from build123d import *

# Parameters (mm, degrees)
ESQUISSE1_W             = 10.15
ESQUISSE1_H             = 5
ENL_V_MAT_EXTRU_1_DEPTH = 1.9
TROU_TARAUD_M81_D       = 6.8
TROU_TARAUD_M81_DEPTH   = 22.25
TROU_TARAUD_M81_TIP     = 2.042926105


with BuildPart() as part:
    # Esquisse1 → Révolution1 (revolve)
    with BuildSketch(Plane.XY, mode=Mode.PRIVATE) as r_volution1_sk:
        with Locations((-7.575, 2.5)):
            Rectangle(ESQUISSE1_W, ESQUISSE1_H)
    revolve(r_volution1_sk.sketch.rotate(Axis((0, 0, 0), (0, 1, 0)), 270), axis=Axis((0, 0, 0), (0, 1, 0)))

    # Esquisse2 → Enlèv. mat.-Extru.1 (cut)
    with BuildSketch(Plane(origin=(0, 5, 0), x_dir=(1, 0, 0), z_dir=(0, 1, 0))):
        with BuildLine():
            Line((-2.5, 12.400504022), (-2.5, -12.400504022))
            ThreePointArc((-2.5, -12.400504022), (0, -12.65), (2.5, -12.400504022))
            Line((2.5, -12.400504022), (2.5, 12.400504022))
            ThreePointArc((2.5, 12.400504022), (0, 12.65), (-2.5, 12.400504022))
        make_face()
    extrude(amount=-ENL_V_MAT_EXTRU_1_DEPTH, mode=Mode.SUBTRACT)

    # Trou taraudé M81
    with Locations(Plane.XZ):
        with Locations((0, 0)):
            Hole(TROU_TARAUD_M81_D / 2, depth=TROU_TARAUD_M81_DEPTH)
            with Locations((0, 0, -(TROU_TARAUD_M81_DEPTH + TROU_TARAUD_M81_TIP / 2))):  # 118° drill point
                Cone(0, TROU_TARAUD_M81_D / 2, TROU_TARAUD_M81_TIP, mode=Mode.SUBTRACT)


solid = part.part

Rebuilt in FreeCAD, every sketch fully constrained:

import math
import FreeCAD as App
import Part
import Sketcher

V = App.Vector
Q = App.Units.Quantity

doc = App.newDocument("Part")
params = doc.addObject("Spreadsheet::Sheet", "Params")
for row, (alias, value) in enumerate([
    ("sketch1_height", "5 mm"),
    ("sketch1_width", "10.15 mm"),
    ("revolution_angle", "360 deg"),
    ("sketch2_radius", "12.65 mm"),
    ("pocket1_length", "1.9 mm"),
    ("sketch3_diameter", "6.8 mm"),
    ("hole_diameter", "6.8 mm"),
    ("hole_depth", "22.25 mm"),
], start=1):
    params.set(f"A{row}", alias)
    params.set(f"B{row}", "=" + value)
    params.setAlias(f"B{row}", alias)

body = doc.addObject("PartDesign::Body", "Body")

# Sketch on XY plane
sketch1 = body.newObject("Sketcher::SketchObject", "Sketch")
sketch1.AttachmentSupport = (doc.getObject("XY_Plane"), [""])
sketch1.MapMode = "FlatFace"
sketch1.addGeometry([
    Part.LineSegment(V(-13, 5, 0), V(-13, 0, 0)),
    Part.LineSegment(V(-13, 0, 0), V(-2, 0, 0)),
    Part.LineSegment(V(-2, 0, 0), V(-2, 5, 0)),
    Part.LineSegment(V(-2, 5, 0), V(-13, 5, 0)),
], False)
sketch1.addConstraint([
    Sketcher.Constraint("Coincident", 0, 2, 1, 1),
    Sketcher.Constraint("Coincident", 1, 2, 2, 1),
    Sketcher.Constraint("Coincident", 2, 2, 3, 1),
    Sketcher.Constraint("Coincident", 3, 2, 0, 1),
    Sketcher.Constraint("Vertical", 0),
    Sketcher.Constraint("Horizontal", 1),
    Sketcher.Constraint("Vertical", 2),
    Sketcher.Constraint("Horizontal", 3),
    Sketcher.Constraint("PointOnObject", 0, 2, -1),
    Sketcher.Constraint("DistanceY", 0, 2, 0, 1, Q("5 mm")),
    Sketcher.Constraint("DistanceX", 1, 1, 1, 2, Q("10.15 mm")),
    Sketcher.Constraint("DistanceX", 1, 2, -1, 1, Q("2.5 mm")),
])
sketch1.setExpression("Constraints[9]", "Params.sketch1_height")
sketch1.setExpression("Constraints[10]", "Params.sketch1_width")
revolution = body.newObject("PartDesign::Revolution", "Revolution")
revolution.Profile = sketch1
revolution.ReferenceAxis = (sketch1, ["V_Axis"])
revolution.setExpression("Angle", "Params.revolution_angle")

# Sketch on XZ plane
sketch2 = body.newObject("Sketcher::SketchObject", "Sketch001")
sketch2.AttachmentSupport = (doc.getObject("XZ_Plane"), [""])
sketch2.MapMode = "FlatFace"
sketch2.AttachmentOffset = App.Placement(V(0, 0, -5), App.Rotation())
sketch2.addGeometry([
    Part.LineSegment(V(-2, -12, 0), V(-2, 12, 0)),
    Part.ArcOfCircle(Part.Circle(V(0, 0, 0), V(0, 0, 1), 13), math.radians(79), math.radians(101)),
    Part.LineSegment(V(2, 12, 0), V(2, -12, 0)),
    Part.ArcOfCircle(Part.Circle(V(0, 0, 0), V(0, 0, 1), 13), math.radians(-101), math.radians(-79)),
], False)
sketch2.addConstraint([
    Sketcher.Constraint("Coincident", 0, 2, 1, 2),
    Sketcher.Constraint("Coincident", 1, 1, 2, 1),
    Sketcher.Constraint("Coincident", 2, 2, 3, 2),
    Sketcher.Constraint("Coincident", 3, 1, 0, 1),
    Sketcher.Constraint("Vertical", 0),
    Sketcher.Constraint("Vertical", 2),
    Sketcher.Constraint("Coincident", 1, 3, -1, 1),
    Sketcher.Constraint("Coincident", 3, 3, -1, 1),
    Sketcher.Constraint("Equal", 1, 3),
    Sketcher.Constraint("Horizontal", 0, 2, 1, 1),
    Sketcher.Constraint("Radius", 1, Q("12.65 mm")),
    Sketcher.Constraint("DistanceX", 0, 2, 1, 1, Q("5 mm")),
])
sketch2.setExpression("Constraints[10]", "Params.sketch2_radius")
pocket1 = body.newObject("PartDesign::Pocket", "Pocket")
pocket1.Profile = sketch2
pocket1.setExpression("Length", "Params.pocket1_length")
pocket1.Reversed = True

# Sketch on XZ plane
sketch3 = body.newObject("Sketcher::SketchObject", "Sketch002")
sketch3.AttachmentSupport = (doc.getObject("XZ_Plane"), [""])
sketch3.MapMode = "FlatFace"
sketch3.addGeometry(Part.Circle(V(0, 0, 0), V(0, 0, 1), 3.4), False)
sketch3.addConstraint([
    Sketcher.Constraint("Coincident", 0, 3, -1, 1),
    Sketcher.Constraint("Diameter", 0, Q("6.8 mm")),
])
sketch3.setExpression("Constraints[1]", "Params.sketch3_diameter")
doc.recompute()
hole = body.newObject("PartDesign::Hole", "Hole")
hole.Profile = sketch3
hole.ThreadType = "None"
hole.setExpression("Diameter", "Params.hole_diameter")
hole.DepthType = "Dimension"
hole.setExpression("Depth", "Params.hole_depth")
hole.DrillPoint = "Angled"
hole.DrillPointAngle = 118

doc.recompute()
